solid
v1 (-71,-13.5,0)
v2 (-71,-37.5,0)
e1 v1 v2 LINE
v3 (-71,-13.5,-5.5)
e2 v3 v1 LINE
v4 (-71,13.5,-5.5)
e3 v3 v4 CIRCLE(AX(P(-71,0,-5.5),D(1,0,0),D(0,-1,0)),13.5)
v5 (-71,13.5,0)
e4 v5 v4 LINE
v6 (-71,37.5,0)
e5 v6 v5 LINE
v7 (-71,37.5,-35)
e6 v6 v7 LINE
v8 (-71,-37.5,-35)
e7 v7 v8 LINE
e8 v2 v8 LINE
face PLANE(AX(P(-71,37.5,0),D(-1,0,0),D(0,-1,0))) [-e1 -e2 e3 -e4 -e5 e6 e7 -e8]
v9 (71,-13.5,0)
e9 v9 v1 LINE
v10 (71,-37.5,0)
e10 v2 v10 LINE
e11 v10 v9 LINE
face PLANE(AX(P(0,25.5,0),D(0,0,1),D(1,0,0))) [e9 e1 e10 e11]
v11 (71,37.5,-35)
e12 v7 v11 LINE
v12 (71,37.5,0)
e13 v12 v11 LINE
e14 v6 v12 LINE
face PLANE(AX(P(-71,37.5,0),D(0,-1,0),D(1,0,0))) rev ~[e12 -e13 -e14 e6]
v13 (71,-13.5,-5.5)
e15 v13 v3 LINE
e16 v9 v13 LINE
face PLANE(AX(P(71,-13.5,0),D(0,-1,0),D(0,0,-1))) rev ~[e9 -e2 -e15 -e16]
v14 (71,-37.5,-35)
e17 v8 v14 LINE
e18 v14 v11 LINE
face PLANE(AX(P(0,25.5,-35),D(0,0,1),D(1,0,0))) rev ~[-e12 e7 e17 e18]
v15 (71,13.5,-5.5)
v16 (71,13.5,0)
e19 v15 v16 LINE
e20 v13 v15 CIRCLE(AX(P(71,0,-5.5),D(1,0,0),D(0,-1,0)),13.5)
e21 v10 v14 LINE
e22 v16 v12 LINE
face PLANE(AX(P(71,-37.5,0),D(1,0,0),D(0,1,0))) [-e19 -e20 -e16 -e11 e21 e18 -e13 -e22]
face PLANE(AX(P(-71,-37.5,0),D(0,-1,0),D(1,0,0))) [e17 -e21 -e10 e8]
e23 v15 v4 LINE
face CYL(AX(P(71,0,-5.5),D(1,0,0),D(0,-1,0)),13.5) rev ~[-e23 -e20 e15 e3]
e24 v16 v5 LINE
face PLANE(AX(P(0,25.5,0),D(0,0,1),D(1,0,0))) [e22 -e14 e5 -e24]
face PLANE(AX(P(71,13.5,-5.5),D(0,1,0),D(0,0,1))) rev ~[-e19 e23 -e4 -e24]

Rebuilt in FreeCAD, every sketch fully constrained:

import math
import FreeCAD as App
import Part
import Sketcher
from FreeCAD import Vector
Q = App.Units.Quantity


def add_polygon(sketch, points):
    """Adds a closed chain of lines whose ends are joined by coincident constraints."""
    first, n = sketch.GeometryCount, len(points)
    for a, b in zip(points, points[1:] + points[:1]):
        sketch.addGeometry(Part.LineSegment(App.Vector(*a, 0), App.Vector(*b, 0)), False)
    for i in range(n):
        sketch.addConstraint(Sketcher.Constraint("Coincident", first + i, 2, first + (i + 1) % n, 1))

doc = App.newDocument("Part")
body = doc.addObject("PartDesign::Body", "Body")

sketch1 = body.newObject("Sketcher::SketchObject", "Sketch")
sketch1.AttachmentSupport = (doc.getObject("XY_Plane"), [""])
sketch1.MapMode = "FlatFace"
add_polygon(sketch1, [(-71, 38), (-71, -38), (71, -38), (71, 38)])
sketch1.addConstraint([
    Sketcher.Constraint("Vertical", 0),
    Sketcher.Constraint("Horizontal", 1),
    Sketcher.Constraint("Vertical", 2),
    Sketcher.Constraint("Horizontal", 3),
    Sketcher.Constraint("Symmetric", 0, 2, 2, 2, -1, 1),
    Sketcher.Constraint("DistanceX", 1, 1, 1, 2, Q("142 mm")),
    Sketcher.Constraint("DistanceY", 0, 2, 0, 1, Q("75 mm")),
])
pad1 = body.newObject("PartDesign::Pad", "Pad")
pad1.Profile = sketch1
pad1.Length = 35
pad1.Reversed = True

sketch2 = body.newObject("Sketcher::SketchObject", "Sketch001")
sketch2.AttachmentSupport = (doc.getObject("YZ_Plane"), [""])
sketch2.MapMode = "FlatFace"
sketch2.AttachmentOffset = App.Placement(Vector(0, 0, 71), App.Rotation())
sketch2.addGeometry([
    Part.LineSegment(Vector(-14, 0, 0), Vector(-14, -6, 0)),
    Part.ArcOfCircle(Part.Circle(Vector(0, -6, 0), Vector(0, 0, 1), 14), math.radians(180), math.radians(360)),
    Part.LineSegment(Vector(14, -6, 0), Vector(14, 0, 0)),
    Part.LineSegment(Vector(14, 0, 0), Vector(-14, 0, 0)),
], False)
sketch2.addConstraint([
    Sketcher.Constraint("Tangent", 0, 2, 1, 1),
    Sketcher.Constraint("Tangent", 1, 2, 2, 1),
    Sketcher.Constraint("Coincident", 2, 2, 3, 1),
    Sketcher.Constraint("Coincident", 3, 2, 0, 1),
    Sketcher.Constraint("Vertical", 0),
    Sketcher.Constraint("Vertical", 2),
    Sketcher.Constraint("Horizontal", 3),
    Sketcher.Constraint("Symmetric", 2, 2, 3, 2, -1, 1),
    Sketcher.Constraint("Radius", 1, Q("13.5 mm")),
    Sketcher.Constraint("DistanceY", 0, 2, 0, 1, Q("5.5 mm")),
])
pocket1 = body.newObject("PartDesign::Pocket", "Pocket")
pocket1.Profile = sketch2
pocket1.Type = "ThroughAll"

doc.recompute()
